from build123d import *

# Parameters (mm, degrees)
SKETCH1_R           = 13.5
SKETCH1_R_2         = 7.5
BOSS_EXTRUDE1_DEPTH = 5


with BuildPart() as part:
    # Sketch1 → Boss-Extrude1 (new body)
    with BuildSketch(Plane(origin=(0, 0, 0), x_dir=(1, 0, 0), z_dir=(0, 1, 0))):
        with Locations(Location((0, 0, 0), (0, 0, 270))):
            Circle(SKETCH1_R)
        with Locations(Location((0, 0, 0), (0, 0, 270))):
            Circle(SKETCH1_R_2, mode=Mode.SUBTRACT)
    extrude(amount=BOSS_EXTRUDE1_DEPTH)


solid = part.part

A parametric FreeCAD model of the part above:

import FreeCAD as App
import Part
import Sketcher
Q = App.Units.Quantity

doc = App.newDocument("Part")
body = doc.addObject("PartDesign::Body", "Body")

sketch1 = body.newObject("Sketcher::SketchObject", "Sketch")
sketch1.AttachmentSupport = (doc.getObject("XZ_Plane"), [""])
sketch1.MapMode = "FlatFace"
sketch1.addGeometry([
    Part.Circle(App.Vector(0, 0, 0), App.Vector(0, 0, 1), 14),
    Part.Circle(App.Vector(0, 0, 0), App.Vector(0, 0, 1), 8),
], False)
sketch1.addConstraint([
    Sketcher.Constraint("Coincident", 0, 3, -1, 1),
    Sketcher.Constraint("Coincident", 1, 3, -1, 1),
    Sketcher.Constraint("Diameter", 0, Q("27 mm")),
    Sketcher.Constraint("Diameter", 1, Q("15 mm")),
])
pad1 = body.newObject("PartDesign::Pad", "Pad")
pad1.Profile = sketch1
pad1.Length = 5
pad1.Reversed = True

doc.recompute()
